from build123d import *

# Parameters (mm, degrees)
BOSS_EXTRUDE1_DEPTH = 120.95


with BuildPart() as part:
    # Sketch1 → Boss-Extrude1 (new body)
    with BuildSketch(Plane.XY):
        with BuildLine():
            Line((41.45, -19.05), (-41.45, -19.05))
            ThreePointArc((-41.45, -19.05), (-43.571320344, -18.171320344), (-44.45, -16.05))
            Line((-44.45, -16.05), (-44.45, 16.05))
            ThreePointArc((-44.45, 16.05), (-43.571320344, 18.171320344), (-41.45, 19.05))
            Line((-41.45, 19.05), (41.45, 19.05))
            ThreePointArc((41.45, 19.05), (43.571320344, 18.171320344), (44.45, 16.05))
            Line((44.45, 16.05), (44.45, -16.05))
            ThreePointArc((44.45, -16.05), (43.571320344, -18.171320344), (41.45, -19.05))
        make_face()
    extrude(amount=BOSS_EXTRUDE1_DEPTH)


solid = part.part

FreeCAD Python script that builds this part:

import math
import FreeCAD as App
import Part
import Sketcher
from FreeCAD import Vector
Q = App.Units.Quantity

doc = App.newDocument("Part")
body = doc.addObject("PartDesign::Body", "Body")

sketch1 = doc.addObject("Sketcher::SketchObject", "Sketch")
body.addObject(sketch1)
sketch1.AttachmentSupport = (doc.XY_Plane, [""])
sketch1.MapMode = "FlatFace"
sketch1.addGeometry(Part.LineSegment(Vector(-41.5, -19.1, 0), Vector(41.5, -19.1, 0)), False)
sketch1.addGeometry(Part.ArcOfCircle(Part.Circle(Vector(41.5, -16.1, 0), Vector(0, 0, 1), 3), math.radians(-90), math.radians(0)), False)
sketch1.addGeometry(Part.LineSegment(Vector(44.5, -16.1, 0), Vector(44.5, 16.1, 0)), False)
sketch1.addGeometry(Part.ArcOfCircle(Part.Circle(Vector(41.5, 16.1, 0), Vector(0, 0, 1), 3), math.radians(0), math.radians(90)), False)
sketch1.addGeometry(Part.LineSegment(Vector(41.5, 19.1, 0), Vector(-41.5, 19.1, 0)), False)
sketch1.addGeometry(Part.ArcOfCircle(Part.Circle(Vector(-41.5, 16.1, 0), Vector(0, 0, 1), 3), math.radians(90), math.radians(180)), False)
sketch1.addGeometry(Part.LineSegment(Vector(-44.5, 16.1, 0), Vector(-44.5, -16.1, 0)), False)
sketch1.addGeometry(Part.ArcOfCircle(Part.Circle(Vector(-41.5, -16.1, 0), Vector(0, 0, 1), 3), math.radians(180), math.radians(270)), False)
sketch1.addConstraint(Sketcher.Constraint("Tangent", 0, 2, 1, 1))
sketch1.addConstraint(Sketcher.Constraint("Tangent", 1, 2, 2, 1))
sketch1.addConstraint(Sketcher.Constraint("Tangent", 2, 2, 3, 1))
sketch1.addConstraint(Sketcher.Constraint("Tangent", 3, 2, 4, 1))
sketch1.addConstraint(Sketcher.Constraint("Tangent", 4, 2, 5, 1))
sketch1.addConstraint(Sketcher.Constraint("Tangent", 5, 2, 6, 1))
sketch1.addConstraint(Sketcher.Constraint("Tangent", 6, 2, 7, 1))
sketch1.addConstraint(Sketcher.Constraint("Tangent", 7, 2, 0, 1))
sketch1.addConstraint(Sketcher.Constraint("Horizontal", 0))
sketch1.addConstraint(Sketcher.Constraint("Vertical", 2))
sketch1.addConstraint(Sketcher.Constraint("Horizontal", 4))
sketch1.addConstraint(Sketcher.Constraint("Vertical", 6))
sketch1.addConstraint(Sketcher.Constraint("Equal", 1, 3))
sketch1.addConstraint(Sketcher.Constraint("Equal", 3, 5))
sketch1.addConstraint(Sketcher.Constraint("Equal", 5, 7))
sketch1.addConstraint(Sketcher.Constraint("Symmetric", 1, 3, 5, 3, -1, 1))
sketch1.addConstraint(Sketcher.Constraint("Radius", 1, Q("3 mm")))
sketch1.addConstraint(Sketcher.Constraint("DistanceX", 0, 1, 0, 2, Q("82.9 mm")))
sketch1.addConstraint(Sketcher.Constraint("DistanceY", 2, 1, 2, 2, Q("32.1 mm")))
pad1 = doc.addObject("PartDesign::Pad", "Pad")
body.addObject(pad1)
pad1.Profile = sketch1
pad1.Length = 120.95

doc.recompute()
